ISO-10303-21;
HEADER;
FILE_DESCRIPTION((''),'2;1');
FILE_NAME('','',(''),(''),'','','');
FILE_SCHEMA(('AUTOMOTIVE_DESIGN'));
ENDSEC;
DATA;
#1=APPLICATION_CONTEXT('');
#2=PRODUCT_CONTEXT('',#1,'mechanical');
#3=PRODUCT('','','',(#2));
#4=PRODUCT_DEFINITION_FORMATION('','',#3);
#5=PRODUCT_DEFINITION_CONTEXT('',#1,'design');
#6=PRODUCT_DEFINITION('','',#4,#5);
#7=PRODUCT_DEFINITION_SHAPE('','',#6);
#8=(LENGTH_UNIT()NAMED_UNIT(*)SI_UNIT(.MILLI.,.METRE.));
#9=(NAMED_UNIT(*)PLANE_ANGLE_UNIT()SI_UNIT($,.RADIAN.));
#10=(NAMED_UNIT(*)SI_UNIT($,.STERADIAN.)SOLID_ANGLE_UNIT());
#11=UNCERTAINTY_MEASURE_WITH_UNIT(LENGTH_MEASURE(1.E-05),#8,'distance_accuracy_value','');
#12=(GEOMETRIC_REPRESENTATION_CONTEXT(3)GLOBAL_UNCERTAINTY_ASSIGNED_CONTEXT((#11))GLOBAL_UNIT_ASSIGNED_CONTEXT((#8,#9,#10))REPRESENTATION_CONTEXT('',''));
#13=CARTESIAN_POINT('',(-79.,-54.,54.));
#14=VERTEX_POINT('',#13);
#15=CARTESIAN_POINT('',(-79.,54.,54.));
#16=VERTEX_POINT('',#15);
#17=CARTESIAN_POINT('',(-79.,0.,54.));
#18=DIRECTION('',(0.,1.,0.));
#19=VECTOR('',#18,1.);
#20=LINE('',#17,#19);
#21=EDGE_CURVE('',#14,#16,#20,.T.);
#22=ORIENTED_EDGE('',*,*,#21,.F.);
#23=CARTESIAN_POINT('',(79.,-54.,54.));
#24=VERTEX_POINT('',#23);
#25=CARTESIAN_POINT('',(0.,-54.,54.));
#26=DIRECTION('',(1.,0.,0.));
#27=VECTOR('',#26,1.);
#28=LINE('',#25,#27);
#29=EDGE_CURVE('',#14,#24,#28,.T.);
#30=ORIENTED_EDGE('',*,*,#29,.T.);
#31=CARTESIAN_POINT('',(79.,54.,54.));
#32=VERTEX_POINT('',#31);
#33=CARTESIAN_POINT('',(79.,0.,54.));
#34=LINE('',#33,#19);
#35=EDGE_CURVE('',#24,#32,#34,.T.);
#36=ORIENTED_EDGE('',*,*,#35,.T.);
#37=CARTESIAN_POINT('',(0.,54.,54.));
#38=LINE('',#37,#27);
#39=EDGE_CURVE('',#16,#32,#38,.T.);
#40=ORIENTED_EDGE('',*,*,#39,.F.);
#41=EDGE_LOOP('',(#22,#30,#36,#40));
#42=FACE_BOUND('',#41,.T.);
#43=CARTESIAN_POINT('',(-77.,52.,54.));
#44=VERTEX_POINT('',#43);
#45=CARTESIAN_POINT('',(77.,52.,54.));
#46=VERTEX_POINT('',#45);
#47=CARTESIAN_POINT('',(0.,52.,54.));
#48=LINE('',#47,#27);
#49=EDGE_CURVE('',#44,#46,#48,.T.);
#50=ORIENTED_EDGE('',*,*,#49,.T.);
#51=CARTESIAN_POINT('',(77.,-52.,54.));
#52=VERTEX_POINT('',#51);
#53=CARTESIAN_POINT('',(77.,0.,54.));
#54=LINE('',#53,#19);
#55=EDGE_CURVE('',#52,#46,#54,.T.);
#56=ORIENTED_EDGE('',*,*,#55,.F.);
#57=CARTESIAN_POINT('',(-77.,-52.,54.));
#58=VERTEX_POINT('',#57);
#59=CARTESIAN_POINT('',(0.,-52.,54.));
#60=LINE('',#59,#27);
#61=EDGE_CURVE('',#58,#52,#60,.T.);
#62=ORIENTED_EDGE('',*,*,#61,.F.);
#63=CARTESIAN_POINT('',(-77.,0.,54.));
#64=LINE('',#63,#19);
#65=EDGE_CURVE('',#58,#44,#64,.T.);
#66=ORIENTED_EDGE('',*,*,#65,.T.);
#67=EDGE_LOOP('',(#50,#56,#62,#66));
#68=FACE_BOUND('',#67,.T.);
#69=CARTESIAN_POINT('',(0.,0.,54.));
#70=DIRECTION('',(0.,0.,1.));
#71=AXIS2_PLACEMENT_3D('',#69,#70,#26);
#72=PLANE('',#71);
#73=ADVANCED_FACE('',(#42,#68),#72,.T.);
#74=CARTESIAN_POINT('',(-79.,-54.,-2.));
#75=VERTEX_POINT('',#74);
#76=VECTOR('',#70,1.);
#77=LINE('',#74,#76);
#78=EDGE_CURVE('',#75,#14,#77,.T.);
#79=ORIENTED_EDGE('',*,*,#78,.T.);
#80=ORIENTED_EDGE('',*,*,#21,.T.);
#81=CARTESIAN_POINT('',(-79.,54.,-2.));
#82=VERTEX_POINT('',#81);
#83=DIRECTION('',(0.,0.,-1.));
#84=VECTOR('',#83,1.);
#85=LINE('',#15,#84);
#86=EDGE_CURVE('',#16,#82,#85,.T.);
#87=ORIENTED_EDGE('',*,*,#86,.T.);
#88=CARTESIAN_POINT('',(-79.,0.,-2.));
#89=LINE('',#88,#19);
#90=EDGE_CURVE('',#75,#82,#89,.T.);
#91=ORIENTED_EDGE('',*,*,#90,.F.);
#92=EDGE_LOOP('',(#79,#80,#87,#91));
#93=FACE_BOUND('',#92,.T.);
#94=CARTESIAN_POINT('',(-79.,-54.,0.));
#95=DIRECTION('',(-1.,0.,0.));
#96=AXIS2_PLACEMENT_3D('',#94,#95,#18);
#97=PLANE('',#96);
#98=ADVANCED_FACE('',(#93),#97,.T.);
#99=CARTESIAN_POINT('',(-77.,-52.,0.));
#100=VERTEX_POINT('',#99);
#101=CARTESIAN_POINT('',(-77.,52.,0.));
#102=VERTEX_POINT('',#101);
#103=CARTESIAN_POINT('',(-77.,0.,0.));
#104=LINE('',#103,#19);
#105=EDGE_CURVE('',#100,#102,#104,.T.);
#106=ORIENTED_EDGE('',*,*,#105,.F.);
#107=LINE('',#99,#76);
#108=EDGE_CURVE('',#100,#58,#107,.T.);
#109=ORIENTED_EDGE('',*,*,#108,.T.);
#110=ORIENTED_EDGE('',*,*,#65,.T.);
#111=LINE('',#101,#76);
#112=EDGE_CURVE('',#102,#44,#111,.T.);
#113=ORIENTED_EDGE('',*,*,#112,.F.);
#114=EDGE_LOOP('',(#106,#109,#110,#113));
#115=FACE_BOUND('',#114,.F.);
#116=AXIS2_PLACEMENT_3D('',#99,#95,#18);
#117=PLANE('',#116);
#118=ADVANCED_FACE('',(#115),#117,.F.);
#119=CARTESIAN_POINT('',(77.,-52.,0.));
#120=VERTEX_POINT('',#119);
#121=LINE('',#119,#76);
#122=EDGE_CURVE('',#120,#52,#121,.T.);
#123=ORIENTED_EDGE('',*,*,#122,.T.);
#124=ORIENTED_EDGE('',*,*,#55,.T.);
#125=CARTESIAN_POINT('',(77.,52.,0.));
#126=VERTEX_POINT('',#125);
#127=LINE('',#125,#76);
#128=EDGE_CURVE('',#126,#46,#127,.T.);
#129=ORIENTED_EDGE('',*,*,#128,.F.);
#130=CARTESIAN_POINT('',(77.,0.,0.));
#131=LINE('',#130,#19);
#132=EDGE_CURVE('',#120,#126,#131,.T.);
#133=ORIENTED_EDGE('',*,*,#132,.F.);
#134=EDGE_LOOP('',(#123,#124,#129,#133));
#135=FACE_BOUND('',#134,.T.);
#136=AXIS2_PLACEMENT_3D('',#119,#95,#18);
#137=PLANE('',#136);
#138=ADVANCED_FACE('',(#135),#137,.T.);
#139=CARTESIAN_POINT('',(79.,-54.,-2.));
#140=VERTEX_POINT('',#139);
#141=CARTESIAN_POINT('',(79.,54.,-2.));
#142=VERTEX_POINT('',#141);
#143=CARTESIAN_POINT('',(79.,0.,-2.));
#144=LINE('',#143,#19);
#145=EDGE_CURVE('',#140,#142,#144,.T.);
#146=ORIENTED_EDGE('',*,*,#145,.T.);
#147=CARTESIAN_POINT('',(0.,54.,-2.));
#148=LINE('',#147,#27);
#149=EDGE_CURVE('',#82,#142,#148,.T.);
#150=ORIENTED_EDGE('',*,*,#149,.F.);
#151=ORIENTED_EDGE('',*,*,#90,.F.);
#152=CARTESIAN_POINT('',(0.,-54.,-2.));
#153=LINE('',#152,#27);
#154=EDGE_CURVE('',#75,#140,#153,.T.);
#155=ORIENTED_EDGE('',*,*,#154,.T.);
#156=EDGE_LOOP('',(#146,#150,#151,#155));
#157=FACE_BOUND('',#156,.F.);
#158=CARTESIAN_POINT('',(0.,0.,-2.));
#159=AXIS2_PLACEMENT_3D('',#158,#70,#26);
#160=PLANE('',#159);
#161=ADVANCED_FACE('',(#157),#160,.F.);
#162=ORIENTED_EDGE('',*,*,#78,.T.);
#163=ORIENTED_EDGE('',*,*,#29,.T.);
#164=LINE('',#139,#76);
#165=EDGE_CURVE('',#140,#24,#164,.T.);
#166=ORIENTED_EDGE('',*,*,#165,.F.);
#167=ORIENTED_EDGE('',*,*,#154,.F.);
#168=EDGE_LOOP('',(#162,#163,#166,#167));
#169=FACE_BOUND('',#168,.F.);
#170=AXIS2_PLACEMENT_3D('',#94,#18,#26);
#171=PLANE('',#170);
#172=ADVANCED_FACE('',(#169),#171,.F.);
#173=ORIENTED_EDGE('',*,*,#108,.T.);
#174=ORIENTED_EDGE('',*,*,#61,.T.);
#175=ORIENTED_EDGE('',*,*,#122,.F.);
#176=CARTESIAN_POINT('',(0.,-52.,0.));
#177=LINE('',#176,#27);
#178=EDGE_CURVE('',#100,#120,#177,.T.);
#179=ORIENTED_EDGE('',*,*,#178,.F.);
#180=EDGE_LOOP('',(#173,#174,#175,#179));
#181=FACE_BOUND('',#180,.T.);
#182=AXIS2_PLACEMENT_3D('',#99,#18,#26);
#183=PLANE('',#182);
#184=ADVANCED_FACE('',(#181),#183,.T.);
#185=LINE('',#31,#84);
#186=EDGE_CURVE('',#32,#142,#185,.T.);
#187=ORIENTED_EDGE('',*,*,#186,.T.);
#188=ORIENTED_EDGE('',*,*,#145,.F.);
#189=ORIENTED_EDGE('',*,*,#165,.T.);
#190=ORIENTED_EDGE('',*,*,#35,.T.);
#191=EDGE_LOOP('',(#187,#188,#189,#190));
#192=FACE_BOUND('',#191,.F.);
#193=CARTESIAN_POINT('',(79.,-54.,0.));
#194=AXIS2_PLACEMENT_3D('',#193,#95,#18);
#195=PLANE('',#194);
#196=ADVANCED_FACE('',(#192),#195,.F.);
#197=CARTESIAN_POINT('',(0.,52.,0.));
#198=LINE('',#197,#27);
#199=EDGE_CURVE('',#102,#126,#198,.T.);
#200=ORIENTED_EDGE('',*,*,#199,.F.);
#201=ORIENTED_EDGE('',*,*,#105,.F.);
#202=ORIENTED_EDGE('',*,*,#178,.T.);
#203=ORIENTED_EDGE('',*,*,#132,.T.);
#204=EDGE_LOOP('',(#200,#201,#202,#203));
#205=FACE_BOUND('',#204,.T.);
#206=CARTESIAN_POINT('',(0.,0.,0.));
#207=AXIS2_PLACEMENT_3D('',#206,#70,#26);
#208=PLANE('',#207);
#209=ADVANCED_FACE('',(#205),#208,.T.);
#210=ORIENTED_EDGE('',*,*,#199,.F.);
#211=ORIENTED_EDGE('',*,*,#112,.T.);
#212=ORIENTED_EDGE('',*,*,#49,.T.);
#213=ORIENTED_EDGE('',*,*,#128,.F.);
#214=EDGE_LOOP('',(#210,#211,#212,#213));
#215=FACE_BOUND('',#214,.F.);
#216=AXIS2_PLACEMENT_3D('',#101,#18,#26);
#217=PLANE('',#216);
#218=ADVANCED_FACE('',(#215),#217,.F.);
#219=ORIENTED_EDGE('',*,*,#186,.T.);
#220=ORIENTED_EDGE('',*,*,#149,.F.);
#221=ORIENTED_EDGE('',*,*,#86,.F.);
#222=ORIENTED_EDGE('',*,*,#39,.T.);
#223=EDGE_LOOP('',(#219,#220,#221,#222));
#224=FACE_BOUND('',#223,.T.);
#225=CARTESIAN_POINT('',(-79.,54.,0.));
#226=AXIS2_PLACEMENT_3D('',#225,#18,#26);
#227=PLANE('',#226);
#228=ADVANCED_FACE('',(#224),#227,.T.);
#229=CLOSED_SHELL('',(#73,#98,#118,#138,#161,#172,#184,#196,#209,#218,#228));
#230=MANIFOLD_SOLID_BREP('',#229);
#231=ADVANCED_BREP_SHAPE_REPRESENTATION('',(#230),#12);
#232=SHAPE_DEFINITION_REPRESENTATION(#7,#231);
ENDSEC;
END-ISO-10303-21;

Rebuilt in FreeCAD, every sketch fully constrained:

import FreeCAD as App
import Part
import Sketcher

V = App.Vector


def add_polygon(sketch, points):
    """Adds a closed chain of lines whose ends are joined by coincident constraints."""
    first, n = sketch.GeometryCount, len(points)
    for a, b in zip(points, points[1:] + points[:1]):
        sketch.addGeometry(Part.LineSegment(App.Vector(*a, 0), App.Vector(*b, 0)), False)
    for i in range(n):
        sketch.addConstraint(Sketcher.Constraint("Coincident", first + i, 2, first + (i + 1) % n, 1))

doc = App.newDocument("Part")
body = doc.addObject("PartDesign::Body", "Body")

sketch1 = doc.addObject("Sketcher::SketchObject", "Sketch")
body.addObject(sketch1)
sketch1.AttachmentSupport = (doc.XY_Plane, [""])
sketch1.MapMode = "FlatFace"
add_polygon(sketch1, [(-79, 54), (-79, -54), (79, -54), (79, 54)])
sketch1.addConstraint([
    Sketcher.Constraint("Vertical", 0),
    Sketcher.Constraint("Horizontal", 1),
    Sketcher.Constraint("Vertical", 2),
    Sketcher.Constraint("Horizontal", 3),
    Sketcher.Constraint("Symmetric", 0, 2, 2, 2, -1, 1),
    Sketcher.Constraint("DistanceX", 1, 1, 1, 2, 158.0),
    Sketcher.Constraint("DistanceY", 0, 2, 0, 1, 108.0),
])
pad1 = doc.addObject("PartDesign::Pad", "Pad")
body.addObject(pad1)
pad1.Profile = sketch1
pad1.Length = 2
pad1.Reversed = True

sketch2 = doc.addObject("Sketcher::SketchObject", "Sketch001")
body.addObject(sketch2)
sketch2.AttachmentSupport = (doc.XY_Plane, [""])
sketch2.MapMode = "FlatFace"
add_polygon(sketch2, [(-79, 54), (-79, -54), (79, -54), (79, 54)])
add_polygon(sketch2, [(77, -52), (-77, -52), (-77, 52), (77, 52)])
sketch2.addConstraint([
    Sketcher.Constraint("Vertical", 0),
    Sketcher.Constraint("Horizontal", 1),
    Sketcher.Constraint("Vertical", 2),
    Sketcher.Constraint("Horizontal", 3),
    Sketcher.Constraint("Horizontal", 4),
    Sketcher.Constraint("Vertical", 5),
    Sketcher.Constraint("Horizontal", 6),
    Sketcher.Constraint("Vertical", 7),
    Sketcher.Constraint("Symmetric", 0, 2, 2, 2, -1, 1),
    Sketcher.Constraint("Symmetric", 4, 2, 6, 2, -1, 1),
    Sketcher.Constraint("DistanceX", 1, 1, 1, 2, 158.0),
    Sketcher.Constraint("DistanceX", 4, 2, 4, 1, 154.0),
    Sketcher.Constraint("DistanceY", 0, 2, 0, 1, 108.0),
    Sketcher.Constraint("DistanceY", 5, 1, 5, 2, 104.0),
])
pad2 = doc.addObject("PartDesign::Pad", "Pad001")
body.addObject(pad2)
pad2.Profile = sketch2
pad2.Length = 54

doc.recompute()
